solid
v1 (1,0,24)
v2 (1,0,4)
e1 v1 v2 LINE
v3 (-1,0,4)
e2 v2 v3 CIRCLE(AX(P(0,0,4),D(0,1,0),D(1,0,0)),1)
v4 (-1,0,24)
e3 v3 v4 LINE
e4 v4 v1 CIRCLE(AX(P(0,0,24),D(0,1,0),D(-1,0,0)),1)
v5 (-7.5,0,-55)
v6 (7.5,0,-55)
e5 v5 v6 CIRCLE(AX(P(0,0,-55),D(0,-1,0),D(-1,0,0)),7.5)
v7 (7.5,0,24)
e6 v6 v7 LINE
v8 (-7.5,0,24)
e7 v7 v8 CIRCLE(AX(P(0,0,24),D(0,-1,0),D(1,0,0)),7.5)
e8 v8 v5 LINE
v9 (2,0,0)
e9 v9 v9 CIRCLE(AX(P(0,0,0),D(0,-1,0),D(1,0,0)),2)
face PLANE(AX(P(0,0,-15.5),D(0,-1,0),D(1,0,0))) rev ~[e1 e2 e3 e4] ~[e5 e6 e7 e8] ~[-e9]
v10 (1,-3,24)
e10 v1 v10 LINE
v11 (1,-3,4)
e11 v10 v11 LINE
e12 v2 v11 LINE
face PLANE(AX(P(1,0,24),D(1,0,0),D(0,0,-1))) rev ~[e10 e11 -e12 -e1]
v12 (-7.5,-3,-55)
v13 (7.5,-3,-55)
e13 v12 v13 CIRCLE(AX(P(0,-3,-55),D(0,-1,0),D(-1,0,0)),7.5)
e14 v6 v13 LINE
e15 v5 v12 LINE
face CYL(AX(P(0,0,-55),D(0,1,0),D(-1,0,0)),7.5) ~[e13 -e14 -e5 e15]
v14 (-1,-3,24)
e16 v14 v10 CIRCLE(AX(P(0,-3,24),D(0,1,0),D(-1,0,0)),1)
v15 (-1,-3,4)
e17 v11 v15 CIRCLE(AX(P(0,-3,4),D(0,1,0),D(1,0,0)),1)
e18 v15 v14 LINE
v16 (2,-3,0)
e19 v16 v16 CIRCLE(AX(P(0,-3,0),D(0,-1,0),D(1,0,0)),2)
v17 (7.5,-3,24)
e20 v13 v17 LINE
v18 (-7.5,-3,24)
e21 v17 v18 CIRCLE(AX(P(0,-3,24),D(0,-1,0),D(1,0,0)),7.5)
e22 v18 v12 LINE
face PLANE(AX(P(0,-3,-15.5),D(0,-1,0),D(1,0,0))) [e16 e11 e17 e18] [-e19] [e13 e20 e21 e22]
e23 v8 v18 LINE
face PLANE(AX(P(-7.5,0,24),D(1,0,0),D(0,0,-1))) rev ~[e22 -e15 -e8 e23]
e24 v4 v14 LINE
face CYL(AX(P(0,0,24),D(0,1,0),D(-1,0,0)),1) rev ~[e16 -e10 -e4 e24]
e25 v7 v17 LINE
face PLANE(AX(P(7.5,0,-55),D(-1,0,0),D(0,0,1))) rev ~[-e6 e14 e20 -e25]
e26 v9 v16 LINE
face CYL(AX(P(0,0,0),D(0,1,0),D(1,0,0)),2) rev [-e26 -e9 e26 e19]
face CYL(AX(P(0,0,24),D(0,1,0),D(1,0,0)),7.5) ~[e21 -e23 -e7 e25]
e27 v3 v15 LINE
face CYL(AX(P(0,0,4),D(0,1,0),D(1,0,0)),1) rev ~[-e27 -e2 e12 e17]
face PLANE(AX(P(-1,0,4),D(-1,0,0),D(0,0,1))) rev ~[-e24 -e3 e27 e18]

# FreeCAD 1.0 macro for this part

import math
import FreeCAD as App
import Part
import Sketcher
from FreeCAD import Vector
Q = App.Units.Quantity

doc = App.newDocument("Part")
body = doc.addObject("PartDesign::Body", "Body")

sketch1 = body.newObject("Sketcher::SketchObject", "Sketch")
sketch1.AttachmentSupport = (doc.getObject("XZ_Plane"), [""])
sketch1.MapMode = "FlatFace"
sketch1.addGeometry([
    Part.LineSegment(Vector(-7.5, 24, 0), Vector(-7.5, -55, 0)),
    Part.ArcOfCircle(Part.Circle(Vector(0, -55, 0), Vector(0, 0, 1), 7.5), math.radians(180), math.radians(360)),
    Part.LineSegment(Vector(7.5, -55, 0), Vector(7.5, 24, 0)),
    Part.ArcOfCircle(Part.Circle(Vector(0, 24, 0), Vector(0, 0, 1), 7.5), math.radians(0), math.radians(180)),
    Part.Circle(Vector(0, 0, 0), Vector(0, 0, 1), 2),
    Part.LineSegment(Vector(-1, 4, 0), Vector(-1, 24, 0)),
    Part.ArcOfCircle(Part.Circle(Vector(0, 24, 0), Vector(0, 0, 1), 1), math.radians(0), math.radians(180)),
    Part.LineSegment(Vector(1, 24, 0), Vector(1, 4, 0)),
    Part.ArcOfCircle(Part.Circle(Vector(0, 4, 0), Vector(0, 0, 1), 1), math.radians(180), math.radians(360)),
], False)
sketch1.addConstraint([
    Sketcher.Constraint("Tangent", 0, 2, 1, 1),
    Sketcher.Constraint("Tangent", 1, 2, 2, 1),
    Sketcher.Constraint("Tangent", 2, 2, 3, 1),
    Sketcher.Constraint("Tangent", 3, 2, 0, 1),
    Sketcher.Constraint("Tangent", 5, 2, 6, 2),
    Sketcher.Constraint("Tangent", 6, 1, 7, 1),
    Sketcher.Constraint("Tangent", 7, 2, 8, 2),
    Sketcher.Constraint("Tangent", 8, 1, 5, 1),
    Sketcher.Constraint("Vertical", 0),
    Sketcher.Constraint("Vertical", 2),
    Sketcher.Constraint("Vertical", 5),
    Sketcher.Constraint("Vertical", 7),
    Sketcher.Constraint("Coincident", 4, 3, -1, 1),
    Sketcher.Constraint("Coincident", 6, 3, 3, 3),
    Sketcher.Constraint("PointOnObject", 1, 3, -2),
    Sketcher.Constraint("Diameter", 4, Q("4 mm")),
    Sketcher.Constraint("Radius", 6, Q("1 mm")),
    Sketcher.Constraint("Radius", 1, Q("7.5 mm")),
    Sketcher.Constraint("DistanceY", 0, 2, 0, 1, Q("79 mm")),
    Sketcher.Constraint("DistanceY", 5, 1, 5, 2, Q("20 mm")),
    Sketcher.Constraint("DistanceY", 1, 3, -1, 1, Q("55 mm")),
])
pad1 = body.newObject("PartDesign::Pad", "Pad")
pad1.Profile = sketch1
pad1.Length = 3

doc.recompute()
